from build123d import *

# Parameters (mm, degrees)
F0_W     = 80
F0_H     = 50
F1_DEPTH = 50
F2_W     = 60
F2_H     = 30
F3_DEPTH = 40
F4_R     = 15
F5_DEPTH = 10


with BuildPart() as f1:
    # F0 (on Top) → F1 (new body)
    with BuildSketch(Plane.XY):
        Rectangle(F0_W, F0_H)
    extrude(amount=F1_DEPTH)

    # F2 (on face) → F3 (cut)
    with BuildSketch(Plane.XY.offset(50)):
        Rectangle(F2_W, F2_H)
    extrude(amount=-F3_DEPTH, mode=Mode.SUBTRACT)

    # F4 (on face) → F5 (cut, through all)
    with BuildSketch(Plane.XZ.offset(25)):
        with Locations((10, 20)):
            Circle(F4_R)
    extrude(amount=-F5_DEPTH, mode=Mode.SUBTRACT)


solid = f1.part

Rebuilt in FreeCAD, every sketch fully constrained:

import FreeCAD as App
import Part
import Sketcher

doc = App.newDocument("Part")
body = doc.addObject("PartDesign::Body", "Body")

# Sketch on XY plane
sketch1 = body.newObject("Sketcher::SketchObject", "Sketch")
sketch1.AttachmentSupport = (doc.getObject("XY_Plane"), [""])
sketch1.MapMode = "FlatFace"
sketch1.addGeometry(Part.LineSegment(App.Vector(-40, 25, 0), App.Vector(-40, -25, 0)), False)
sketch1.addGeometry(Part.LineSegment(App.Vector(-40, -25, 0), App.Vector(40, -25, 0)), False)
sketch1.addGeometry(Part.LineSegment(App.Vector(40, -25, 0), App.Vector(40, 25, 0)), False)
sketch1.addGeometry(Part.LineSegment(App.Vector(40, 25, 0), App.Vector(-40, 25, 0)), False)
sketch1.addConstraint(Sketcher.Constraint("Coincident", 0, 2, 1, 1))
sketch1.addConstraint(Sketcher.Constraint("Coincident", 1, 2, 2, 1))
sketch1.addConstraint(Sketcher.Constraint("Coincident", 2, 2, 3, 1))
sketch1.addConstraint(Sketcher.Constraint("Coincident", 3, 2, 0, 1))
sketch1.addConstraint(Sketcher.Constraint("Vertical", 0))
sketch1.addConstraint(Sketcher.Constraint("Horizontal", 1))
sketch1.addConstraint(Sketcher.Constraint("Vertical", 2))
sketch1.addConstraint(Sketcher.Constraint("Horizontal", 3))
sketch1.addConstraint(Sketcher.Constraint("Symmetric", 0, 2, 2, 2, -1, 1))
sketch1.addConstraint(Sketcher.Constraint("DistanceX", 1, 1, 1, 2, 80.0))
sketch1.addConstraint(Sketcher.Constraint("DistanceY", 0, 2, 0, 1, 50.0))
pad1 = body.newObject("PartDesign::Pad", "Pad")
pad1.Profile = sketch1
pad1.Length = 50

# Sketch on XY plane
sketch2 = body.newObject("Sketcher::SketchObject", "Sketch001")
sketch2.AttachmentSupport = (doc.getObject("XY_Plane"), [""])
sketch2.MapMode = "FlatFace"
sketch2.AttachmentOffset = App.Placement(App.Vector(0, 0, 50), App.Rotation())
sketch2.addGeometry(Part.LineSegment(App.Vector(-30, 15, 0), App.Vector(-30, -15, 0)), False)
sketch2.addGeometry(Part.LineSegment(App.Vector(-30, -15, 0), App.Vector(30, -15, 0)), False)
sketch2.addGeometry(Part.LineSegment(App.Vector(30, -15, 0), App.Vector(30, 15, 0)), False)
sketch2.addGeometry(Part.LineSegment(App.Vector(30, 15, 0), App.Vector(-30, 15, 0)), False)
sketch2.addConstraint(Sketcher.Constraint("Coincident", 0, 2, 1, 1))
sketch2.addConstraint(Sketcher.Constraint("Coincident", 1, 2, 2, 1))
sketch2.addConstraint(Sketcher.Constraint("Coincident", 2, 2, 3, 1))
sketch2.addConstraint(Sketcher.Constraint("Coincident", 3, 2, 0, 1))
sketch2.addConstraint(Sketcher.Constraint("Vertical", 0))
sketch2.addConstraint(Sketcher.Constraint("Horizontal", 1))
sketch2.addConstraint(Sketcher.Constraint("Vertical", 2))
sketch2.addConstraint(Sketcher.Constraint("Horizontal", 3))
sketch2.addConstraint(Sketcher.Constraint("Symmetric", 0, 2, 2, 2, -1, 1))
sketch2.addConstraint(Sketcher.Constraint("DistanceX", 1, 1, 1, 2, 60.0))
sketch2.addConstraint(Sketcher.Constraint("DistanceY", 0, 2, 0, 1, 30.0))
pocket1 = body.newObject("PartDesign::Pocket", "Pocket")
pocket1.Profile = sketch2
pocket1.Length = 40

# Sketch on XZ plane
sketch3 = body.newObject("Sketcher::SketchObject", "Sketch002")
sketch3.AttachmentSupport = (doc.getObject("XZ_Plane"), [""])
sketch3.MapMode = "FlatFace"
sketch3.AttachmentOffset = App.Placement(App.Vector(0, 0, 25), App.Rotation())
sketch3.addGeometry(Part.Circle(App.Vector(10, 20, 0), App.Vector(0, 0, 1), 15), False)
sketch3.addConstraint(Sketcher.Constraint("Diameter", 0, 30.0))
sketch3.addConstraint(Sketcher.Constraint("DistanceX", -1, 1, 0, 3, 10.0))
sketch3.addConstraint(Sketcher.Constraint("DistanceY", -1, 1, 0, 3, 20.0))
pocket2 = body.newObject("PartDesign::Pocket", "Pocket001")
pocket2.Profile = sketch3
pocket2.Length = 10

doc.recompute()
